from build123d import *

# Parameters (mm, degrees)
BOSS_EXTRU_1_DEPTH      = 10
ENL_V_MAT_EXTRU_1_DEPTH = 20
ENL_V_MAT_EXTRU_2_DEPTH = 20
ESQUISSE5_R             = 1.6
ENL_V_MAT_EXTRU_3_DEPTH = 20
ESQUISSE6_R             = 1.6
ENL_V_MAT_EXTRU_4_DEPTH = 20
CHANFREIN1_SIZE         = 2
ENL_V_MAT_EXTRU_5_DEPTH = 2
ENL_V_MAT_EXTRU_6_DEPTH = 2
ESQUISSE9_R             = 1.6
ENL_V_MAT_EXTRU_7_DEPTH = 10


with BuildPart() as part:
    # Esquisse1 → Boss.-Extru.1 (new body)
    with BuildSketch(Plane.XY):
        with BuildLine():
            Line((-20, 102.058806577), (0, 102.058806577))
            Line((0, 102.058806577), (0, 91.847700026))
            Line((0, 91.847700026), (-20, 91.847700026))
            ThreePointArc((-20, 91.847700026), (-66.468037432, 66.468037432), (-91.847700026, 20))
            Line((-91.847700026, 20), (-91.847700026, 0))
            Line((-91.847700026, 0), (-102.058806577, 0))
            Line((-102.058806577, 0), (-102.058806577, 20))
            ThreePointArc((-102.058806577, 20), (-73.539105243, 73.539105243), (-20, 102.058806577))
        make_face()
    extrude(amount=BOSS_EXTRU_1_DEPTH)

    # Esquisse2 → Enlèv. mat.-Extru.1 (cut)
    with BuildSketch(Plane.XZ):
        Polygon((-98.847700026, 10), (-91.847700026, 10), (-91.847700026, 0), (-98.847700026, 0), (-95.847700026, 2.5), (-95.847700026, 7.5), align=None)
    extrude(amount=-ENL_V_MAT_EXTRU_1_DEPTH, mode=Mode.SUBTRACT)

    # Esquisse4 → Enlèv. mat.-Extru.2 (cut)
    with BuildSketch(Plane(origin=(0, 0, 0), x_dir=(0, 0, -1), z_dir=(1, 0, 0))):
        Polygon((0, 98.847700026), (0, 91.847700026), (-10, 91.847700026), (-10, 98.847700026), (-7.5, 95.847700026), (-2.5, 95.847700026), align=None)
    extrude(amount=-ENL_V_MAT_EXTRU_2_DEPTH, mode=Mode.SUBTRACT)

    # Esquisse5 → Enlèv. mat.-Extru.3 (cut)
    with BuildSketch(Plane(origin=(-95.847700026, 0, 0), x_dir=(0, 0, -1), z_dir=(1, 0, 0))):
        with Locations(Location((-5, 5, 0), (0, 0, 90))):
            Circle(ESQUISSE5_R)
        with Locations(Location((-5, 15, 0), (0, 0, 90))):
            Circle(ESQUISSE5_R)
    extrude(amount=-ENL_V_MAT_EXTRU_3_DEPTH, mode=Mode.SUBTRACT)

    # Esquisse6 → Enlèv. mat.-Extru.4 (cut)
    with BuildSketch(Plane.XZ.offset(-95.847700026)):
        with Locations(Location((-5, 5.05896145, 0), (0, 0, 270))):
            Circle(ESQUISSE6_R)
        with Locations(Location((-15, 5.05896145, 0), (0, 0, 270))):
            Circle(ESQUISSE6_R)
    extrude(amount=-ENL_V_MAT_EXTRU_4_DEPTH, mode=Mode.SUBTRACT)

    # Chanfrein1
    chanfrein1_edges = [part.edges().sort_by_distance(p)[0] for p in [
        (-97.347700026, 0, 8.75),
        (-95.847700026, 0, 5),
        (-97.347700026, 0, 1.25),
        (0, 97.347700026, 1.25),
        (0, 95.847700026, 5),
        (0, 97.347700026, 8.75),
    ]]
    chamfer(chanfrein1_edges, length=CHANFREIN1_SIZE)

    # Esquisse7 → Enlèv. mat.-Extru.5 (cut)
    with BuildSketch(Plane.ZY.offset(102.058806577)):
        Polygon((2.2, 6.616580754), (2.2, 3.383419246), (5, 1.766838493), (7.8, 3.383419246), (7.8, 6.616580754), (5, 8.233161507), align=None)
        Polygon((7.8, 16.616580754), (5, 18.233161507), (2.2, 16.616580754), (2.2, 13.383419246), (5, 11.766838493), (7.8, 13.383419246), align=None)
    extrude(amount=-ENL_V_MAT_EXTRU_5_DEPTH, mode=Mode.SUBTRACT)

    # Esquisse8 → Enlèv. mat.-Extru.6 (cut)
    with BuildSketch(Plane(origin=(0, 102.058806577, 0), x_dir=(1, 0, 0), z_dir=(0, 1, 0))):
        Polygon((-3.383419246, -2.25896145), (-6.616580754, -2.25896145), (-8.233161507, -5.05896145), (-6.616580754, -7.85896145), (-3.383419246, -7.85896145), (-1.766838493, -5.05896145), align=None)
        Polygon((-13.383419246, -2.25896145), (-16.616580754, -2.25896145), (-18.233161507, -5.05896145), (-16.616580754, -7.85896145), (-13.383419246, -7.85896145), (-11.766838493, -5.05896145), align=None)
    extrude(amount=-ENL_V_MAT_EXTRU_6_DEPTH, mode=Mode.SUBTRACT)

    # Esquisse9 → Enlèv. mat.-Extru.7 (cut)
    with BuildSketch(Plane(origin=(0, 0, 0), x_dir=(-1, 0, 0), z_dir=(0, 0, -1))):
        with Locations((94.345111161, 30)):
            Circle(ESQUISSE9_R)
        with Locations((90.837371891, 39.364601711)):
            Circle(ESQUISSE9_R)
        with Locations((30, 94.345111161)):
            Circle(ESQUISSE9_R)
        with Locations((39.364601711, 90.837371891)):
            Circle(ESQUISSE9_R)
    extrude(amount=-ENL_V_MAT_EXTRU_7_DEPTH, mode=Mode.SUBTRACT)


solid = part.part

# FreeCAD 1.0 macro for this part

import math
import FreeCAD as App
import Part
import Sketcher

V = App.Vector
Q = App.Units.Quantity


def edges_at(feature, points):
    """Names of the edges that pass closest to the given points."""
    edges = feature.Shape.Edges
    near = lambda p: min(range(len(edges)), key=lambda i: edges[i].distToShape(Part.Vertex(*p))[0])
    return sorted({f"Edge{near(p) + 1}" for p in points})


def add_polygon(sketch, points):
    """Adds a closed chain of lines whose ends are joined by coincident constraints."""
    first, n = sketch.GeometryCount, len(points)
    for a, b in zip(points, points[1:] + points[:1]):
        sketch.addGeometry(Part.LineSegment(App.Vector(*a, 0), App.Vector(*b, 0)), False)
    for i in range(n):
        sketch.addConstraint(Sketcher.Constraint("Coincident", first + i, 2, first + (i + 1) % n, 1))

doc = App.newDocument("Part")
body = doc.addObject("PartDesign::Body", "Body")

sketch1 = body.newObject("Sketcher::SketchObject", "Sketch")
sketch1.AttachmentSupport = (doc.getObject("XY_Plane"), [""])
sketch1.MapMode = "FlatFace"
sketch1.addGeometry([
    Part.LineSegment(V(0, 102.058807, 0), V(-20, 102.058807, 0)),
    Part.ArcOfCircle(Part.Circle(V(0, 0, 0), V(0, 0, 1), 104), math.radians(101.087489), math.radians(168.912511)),
    Part.LineSegment(V(-102.058807, 20, 0), V(-102.058807, 0, 0)),
    Part.LineSegment(V(-102.058807, 0, 0), V(-91.8477, 0, 0)),
    Part.LineSegment(V(-91.8477, 0, 0), V(-91.8477, 20, 0)),
    Part.ArcOfCircle(Part.Circle(V(0, 0, 0), V(0, 0, 1), 94), math.radians(102.284494), math.radians(167.715506)),
    Part.LineSegment(V(-20, 91.8477, 0), V(0, 91.8477, 0)),
    Part.LineSegment(V(0, 91.8477, 0), V(0, 102.058807, 0)),
], False)
sketch1.addConstraint([
    Sketcher.Constraint("Coincident", 0, 2, 1, 1),
    Sketcher.Constraint("Coincident", 1, 2, 2, 1),
    Sketcher.Constraint("Coincident", 2, 2, 3, 1),
    Sketcher.Constraint("Coincident", 3, 2, 4, 1),
    Sketcher.Constraint("Coincident", 4, 2, 5, 2),
    Sketcher.Constraint("Coincident", 5, 1, 6, 1),
    Sketcher.Constraint("Coincident", 6, 2, 7, 1),
    Sketcher.Constraint("Coincident", 7, 2, 0, 1),
    Sketcher.Constraint("Horizontal", 0),
    Sketcher.Constraint("Vertical", 2),
    Sketcher.Constraint("Horizontal", 3),
    Sketcher.Constraint("Vertical", 4),
    Sketcher.Constraint("Horizontal", 6),
    Sketcher.Constraint("Vertical", 7),
    Sketcher.Constraint("Coincident", 1, 3, -1, 1),
    Sketcher.Constraint("Coincident", 5, 3, -1, 1),
    Sketcher.Constraint("PointOnObject", 2, 2, -1),
    Sketcher.Constraint("PointOnObject", 6, 2, -2),
    Sketcher.Constraint("Horizontal", 1, 2, 4, 2),
    Sketcher.Constraint("Vertical", 0, 2, 5, 1),
    Sketcher.Constraint("Equal", 6, 2),
    Sketcher.Constraint("Radius", 1, 104.0),
    Sketcher.Constraint("Radius", 5, 94.0),
    Sketcher.Constraint("DistanceX", 0, 2, 0, 1, 20.0),
])
pad1 = body.newObject("PartDesign::Pad", "Pad")
pad1.Profile = sketch1
pad1.Length = 10

sketch2 = body.newObject("Sketcher::SketchObject", "Sketch001")
sketch2.AttachmentSupport = (doc.getObject("XZ_Plane"), [""])
sketch2.MapMode = "FlatFace"
add_polygon(sketch2, [(-91.8477, 10), (-98.8477, 10), (-95.8477, 7.5), (-95.8477, 2.5), (-98.8477, 0), (-91.8477, 0)])
sketch2.addConstraint([
    Sketcher.Constraint("Horizontal", 0),
    Sketcher.Constraint("Vertical", 2),
    Sketcher.Constraint("Horizontal", 4),
    Sketcher.Constraint("Vertical", 5),
    Sketcher.Constraint("PointOnObject", 3, 2, -1),
    Sketcher.Constraint("Vertical", 0, 2, 3, 2),
    Sketcher.Constraint("Equal", 1, 3),
    Sketcher.Constraint("DistanceX", 0, 2, 0, 1, 7.0),
    Sketcher.Constraint("DistanceY", 2, 2, 2, 1, 5.0),
    Sketcher.Constraint("DistanceY", 5, 1, 5, 2, 10.0),
    Sketcher.Constraint("DistanceX", 0, 2, 1, 2, 3.0),
    Sketcher.Constraint("DistanceX", 0, 2, -1, 1, 98.8477),
])
pocket1 = body.newObject("PartDesign::Pocket", "Pocket")
pocket1.Profile = sketch2
pocket1.Length = 20

sketch3 = body.newObject("Sketcher::SketchObject", "Sketch002")
sketch3.AttachmentSupport = (doc.getObject("YZ_Plane"), [""])
sketch3.MapMode = "FlatFace"
add_polygon(sketch3, [(91.8477, 0), (98.8477, 0), (95.8477, 2.5), (95.8477, 7.5), (98.8477, 10), (91.8477, 10)])
sketch3.addConstraint([
    Sketcher.Constraint("Horizontal", 0),
    Sketcher.Constraint("Vertical", 2),
    Sketcher.Constraint("Horizontal", 4),
    Sketcher.Constraint("Vertical", 5),
    Sketcher.Constraint("PointOnObject", 0, 2, -1),
    Sketcher.Constraint("Vertical", 0, 2, 3, 2),
    Sketcher.Constraint("Equal", 1, 3),
    Sketcher.Constraint("DistanceX", 0, 1, 0, 2, 7.0),
    Sketcher.Constraint("DistanceY", 2, 1, 2, 2, 5.0),
    Sketcher.Constraint("DistanceY", 5, 2, 5, 1, 10.0),
    Sketcher.Constraint("DistanceX", 1, 2, 0, 2, 3.0),
    Sketcher.Constraint("DistanceX", -1, 1, 0, 2, 98.8477),
])
pocket2 = body.newObject("PartDesign::Pocket", "Pocket001")
pocket2.Profile = sketch3
pocket2.Length = 20

sketch4 = body.newObject("Sketcher::SketchObject", "Sketch003")
sketch4.AttachmentSupport = (doc.getObject("YZ_Plane"), [""])
sketch4.MapMode = "FlatFace"
sketch4.AttachmentOffset = App.Placement(V(0, 0, -95.8477), App.Rotation())
sketch4.addGeometry([
    Part.Circle(V(5, 5, 0), V(0, 0, 1), 1.6),
    Part.Circle(V(15, 5, 0), V(0, 0, 1), 1.6),
], False)
sketch4.addConstraint([
    Sketcher.Constraint("Equal", 0, 1),
    Sketcher.Constraint("Horizontal", 0, 3, 1, 3),
    Sketcher.Constraint("Diameter", 0, 3.2),
    Sketcher.Constraint("DistanceX", -1, 1, 0, 3, 5.0),
    Sketcher.Constraint("DistanceY", -1, 1, 0, 3, 5.0),
    Sketcher.Constraint("DistanceX", -1, 1, 1, 3, 15.0),
])
pocket3 = body.newObject("PartDesign::Pocket", "Pocket002")
pocket3.Profile = sketch4
pocket3.Length = 20

sketch5 = body.newObject("Sketcher::SketchObject", "Sketch004")
sketch5.AttachmentSupport = (doc.getObject("XZ_Plane"), [""])
sketch5.MapMode = "FlatFace"
sketch5.AttachmentOffset = App.Placement(V(0, 0, -95.8477), App.Rotation())
sketch5.addGeometry([
    Part.Circle(V(-5, 5.058961, 0), V(0, 0, 1), 1.6),
    Part.Circle(V(-15, 5.058961, 0), V(0, 0, 1), 1.6),
], False)
sketch5.addConstraint([
    Sketcher.Constraint("Equal", 0, 1),
    Sketcher.Constraint("Horizontal", 0, 3, 1, 3),
    Sketcher.Constraint("Diameter", 0, 3.2),
    Sketcher.Constraint("DistanceX", 0, 3, -1, 1, 5.0),
    Sketcher.Constraint("DistanceX", 1, 3, -1, 1, 15.0),
    Sketcher.Constraint("DistanceY", -1, 1, 0, 3, 5.058961),
])
pocket4 = body.newObject("PartDesign::Pocket", "Pocket003")
pocket4.Profile = sketch5
pocket4.Length = 20
doc.recompute()

chamfer = body.newObject("PartDesign::Chamfer", "Chamfer")
chamfer.Base = (pocket4, edges_at(pocket4, [
    (-97.348, 0, 8.75),
    (-95.848, 0, 5),
    (-97.348, 0, 1.25),
    (0, 97.348, 1.25),
    (0, 95.848, 5),
    (0, 97.348, 8.75),
]))
chamfer.Size = 2

sketch6 = body.newObject("Sketcher::SketchObject", "Sketch005")
sketch6.AttachmentSupport = (doc.getObject("YZ_Plane"), [""])
sketch6.MapMode = "FlatFace"
sketch6.AttachmentOffset = App.Placement(V(0, 0, -102.058807), App.Rotation())
add_polygon(sketch6, [(6.616581, 2.2), (3.383419, 2.2), (1.766838, 5), (3.383419, 7.8), (6.616581, 7.8), (8.233162, 5)])
add_polygon(sketch6, [(16.616581, 7.8), (18.233162, 5), (16.616581, 2.2), (13.383419, 2.2), (11.766838, 5), (13.383419, 7.8)])
sketch6.addConstraint([
    Sketcher.Constraint("Horizontal", 0),
    Sketcher.Constraint("Horizontal", 3),
    Sketcher.Constraint("Horizontal", 8),
    Sketcher.Constraint("Horizontal", 11),
    Sketcher.Constraint("Parallel", 1, 4),
    Sketcher.Constraint("Parallel", 2, 5),
    Sketcher.Constraint("Parallel", 4, 6),
    Sketcher.Constraint("Parallel", 5, 7),
    Sketcher.Constraint("Parallel", 6, 9),
    Sketcher.Constraint("Parallel", 7, 10),
    Sketcher.Constraint("Horizontal", 1, 2, 4, 2),
    Sketcher.Constraint("Horizontal", 4, 2, 6, 2),
    Sketcher.Constraint("Horizontal", 5, 2, 7, 2),
    Sketcher.Constraint("Horizontal", 6, 2, 9, 2),
    Sketcher.Constraint("Horizontal", 3, 2, 10, 2),
    Sketcher.Constraint("Vertical", 0, 2, 2, 2),
    Sketcher.Constraint("Vertical", 3, 2, 5, 2),
    Sketcher.Constraint("Equal", 3, 8),
    Sketcher.Constraint("Angle", 1, Q("120 deg")),
    Sketcher.Constraint("DistanceY", -1, 1, 1, 2, 5.0),
    Sketcher.Constraint("DistanceX", 4, 2, 6, 2, 10.0),
    Sketcher.Constraint("DistanceY", -1, 1, 0, 2, 2.2),
    Sketcher.Constraint("DistanceX", 0, 2, 0, 1, 3.233162),
    Sketcher.Constraint("DistanceX", -1, 1, 0, 2, 3.383419),
])
pocket5 = body.newObject("PartDesign::Pocket", "Pocket004")
pocket5.Profile = sketch6
pocket5.Length = 2
pocket5.Reversed = True

sketch7 = body.newObject("Sketcher::SketchObject", "Sketch006")
sketch7.AttachmentSupport = (doc.getObject("XZ_Plane"), [""])
sketch7.MapMode = "FlatFace"
sketch7.AttachmentOffset = App.Placement(V(0, 0, -102.058807), App.Rotation())
add_polygon(sketch7, [(-3.383419, 2.258961), (-6.616581, 2.258961), (-8.233162, 5.058961), (-6.616581, 7.858961), (-3.383419, 7.858961), (-1.766838, 5.058961)])
add_polygon(sketch7, [(-13.383419, 2.258961), (-16.616581, 2.258961), (-18.233162, 5.058961), (-16.616581, 7.858961), (-13.383419, 7.858961), (-11.766838, 5.058961)])
sketch7.addConstraint([
    Sketcher.Constraint("Horizontal", 0),
    Sketcher.Constraint("Horizontal", 3),
    Sketcher.Constraint("Horizontal", 6),
    Sketcher.Constraint("Horizontal", 9),
    Sketcher.Constraint("Parallel", 1, 4),
    Sketcher.Constraint("Parallel", 2, 5),
    Sketcher.Constraint("Parallel", 4, 7),
    Sketcher.Constraint("Parallel", 5, 8),
    Sketcher.Constraint("Parallel", 7, 10),
    Sketcher.Constraint("Parallel", 8, 11),
    Sketcher.Constraint("Horizontal", 1, 2, 4, 2),
    Sketcher.Constraint("Horizontal", 5, 2, 6, 2),
    Sketcher.Constraint("Horizontal", 4, 2, 7, 2),
    Sketcher.Constraint("Horizontal", 3, 2, 8, 2),
    Sketcher.Constraint("Horizontal", 7, 2, 10, 2),
    Sketcher.Constraint("Vertical", 0, 2, 2, 2),
    Sketcher.Constraint("Vertical", 3, 2, 5, 2),
    Sketcher.Constraint("Equal", 3, 6),
    Sketcher.Constraint("Angle", 1, Q("120 deg")),
    Sketcher.Constraint("DistanceX", 6, 2, 0, 2, 10.0),
    Sketcher.Constraint("DistanceY", 0, 2, 1, 2, 2.8),
    Sketcher.Constraint("DistanceX", 0, 2, 0, 1, 3.233162),
    Sketcher.Constraint("DistanceX", 0, 2, -1, 1, 6.616581),
    Sketcher.Constraint("DistanceY", -1, 1, 0, 2, 2.258961),
])
pocket6 = body.newObject("PartDesign::Pocket", "Pocket005")
pocket6.Profile = sketch7
pocket6.Length = 2
pocket6.Reversed = True

sketch8 = body.newObject("Sketcher::SketchObject", "Sketch007")
sketch8.AttachmentSupport = (doc.getObject("XY_Plane"), [""])
sketch8.MapMode = "FlatFace"
sketch8.addGeometry([
    Part.Circle(V(-94.345111, 30, 0), V(0, 0, 1), 1.6),
    Part.Circle(V(-90.837372, 39.364602, 0), V(0, 0, 1), 1.6),
    Part.Circle(V(-30, 94.345111, 0), V(0, 0, 1), 1.6),
    Part.Circle(V(-39.364602, 90.837372, 0), V(0, 0, 1), 1.6),
], False)
sketch8.addConstraint([
    Sketcher.Constraint("Equal", 0, 1),
    Sketcher.Constraint("Equal", 1, 2),
    Sketcher.Constraint("Equal", 2, 3),
    Sketcher.Constraint("Diameter", 0, 3.2),
    Sketcher.Constraint("DistanceY", -1, 1, 0, 3, 30.0),
    Sketcher.Constraint("DistanceX", 2, 3, -1, 1, 30.0),
    Sketcher.Constraint("DistanceY", -1, 1, 1, 3, 39.364602),
    Sketcher.Constraint("DistanceX", 3, 3, -1, 1, 39.364602),
    Sketcher.Constraint("DistanceX", 0, 3, -1, 1, 94.345111),
    Sketcher.Constraint("DistanceX", 1, 3, -1, 1, 90.837372),
    Sketcher.Constraint("DistanceY", -1, 1, 2, 3, 94.345111),
    Sketcher.Constraint("DistanceY", -1, 1, 3, 3, 90.837372),
])
pocket7 = body.newObject("PartDesign::Pocket", "Pocket006")
pocket7.Profile = sketch8
pocket7.Length = 10
pocket7.Reversed = True

doc.recompute()
